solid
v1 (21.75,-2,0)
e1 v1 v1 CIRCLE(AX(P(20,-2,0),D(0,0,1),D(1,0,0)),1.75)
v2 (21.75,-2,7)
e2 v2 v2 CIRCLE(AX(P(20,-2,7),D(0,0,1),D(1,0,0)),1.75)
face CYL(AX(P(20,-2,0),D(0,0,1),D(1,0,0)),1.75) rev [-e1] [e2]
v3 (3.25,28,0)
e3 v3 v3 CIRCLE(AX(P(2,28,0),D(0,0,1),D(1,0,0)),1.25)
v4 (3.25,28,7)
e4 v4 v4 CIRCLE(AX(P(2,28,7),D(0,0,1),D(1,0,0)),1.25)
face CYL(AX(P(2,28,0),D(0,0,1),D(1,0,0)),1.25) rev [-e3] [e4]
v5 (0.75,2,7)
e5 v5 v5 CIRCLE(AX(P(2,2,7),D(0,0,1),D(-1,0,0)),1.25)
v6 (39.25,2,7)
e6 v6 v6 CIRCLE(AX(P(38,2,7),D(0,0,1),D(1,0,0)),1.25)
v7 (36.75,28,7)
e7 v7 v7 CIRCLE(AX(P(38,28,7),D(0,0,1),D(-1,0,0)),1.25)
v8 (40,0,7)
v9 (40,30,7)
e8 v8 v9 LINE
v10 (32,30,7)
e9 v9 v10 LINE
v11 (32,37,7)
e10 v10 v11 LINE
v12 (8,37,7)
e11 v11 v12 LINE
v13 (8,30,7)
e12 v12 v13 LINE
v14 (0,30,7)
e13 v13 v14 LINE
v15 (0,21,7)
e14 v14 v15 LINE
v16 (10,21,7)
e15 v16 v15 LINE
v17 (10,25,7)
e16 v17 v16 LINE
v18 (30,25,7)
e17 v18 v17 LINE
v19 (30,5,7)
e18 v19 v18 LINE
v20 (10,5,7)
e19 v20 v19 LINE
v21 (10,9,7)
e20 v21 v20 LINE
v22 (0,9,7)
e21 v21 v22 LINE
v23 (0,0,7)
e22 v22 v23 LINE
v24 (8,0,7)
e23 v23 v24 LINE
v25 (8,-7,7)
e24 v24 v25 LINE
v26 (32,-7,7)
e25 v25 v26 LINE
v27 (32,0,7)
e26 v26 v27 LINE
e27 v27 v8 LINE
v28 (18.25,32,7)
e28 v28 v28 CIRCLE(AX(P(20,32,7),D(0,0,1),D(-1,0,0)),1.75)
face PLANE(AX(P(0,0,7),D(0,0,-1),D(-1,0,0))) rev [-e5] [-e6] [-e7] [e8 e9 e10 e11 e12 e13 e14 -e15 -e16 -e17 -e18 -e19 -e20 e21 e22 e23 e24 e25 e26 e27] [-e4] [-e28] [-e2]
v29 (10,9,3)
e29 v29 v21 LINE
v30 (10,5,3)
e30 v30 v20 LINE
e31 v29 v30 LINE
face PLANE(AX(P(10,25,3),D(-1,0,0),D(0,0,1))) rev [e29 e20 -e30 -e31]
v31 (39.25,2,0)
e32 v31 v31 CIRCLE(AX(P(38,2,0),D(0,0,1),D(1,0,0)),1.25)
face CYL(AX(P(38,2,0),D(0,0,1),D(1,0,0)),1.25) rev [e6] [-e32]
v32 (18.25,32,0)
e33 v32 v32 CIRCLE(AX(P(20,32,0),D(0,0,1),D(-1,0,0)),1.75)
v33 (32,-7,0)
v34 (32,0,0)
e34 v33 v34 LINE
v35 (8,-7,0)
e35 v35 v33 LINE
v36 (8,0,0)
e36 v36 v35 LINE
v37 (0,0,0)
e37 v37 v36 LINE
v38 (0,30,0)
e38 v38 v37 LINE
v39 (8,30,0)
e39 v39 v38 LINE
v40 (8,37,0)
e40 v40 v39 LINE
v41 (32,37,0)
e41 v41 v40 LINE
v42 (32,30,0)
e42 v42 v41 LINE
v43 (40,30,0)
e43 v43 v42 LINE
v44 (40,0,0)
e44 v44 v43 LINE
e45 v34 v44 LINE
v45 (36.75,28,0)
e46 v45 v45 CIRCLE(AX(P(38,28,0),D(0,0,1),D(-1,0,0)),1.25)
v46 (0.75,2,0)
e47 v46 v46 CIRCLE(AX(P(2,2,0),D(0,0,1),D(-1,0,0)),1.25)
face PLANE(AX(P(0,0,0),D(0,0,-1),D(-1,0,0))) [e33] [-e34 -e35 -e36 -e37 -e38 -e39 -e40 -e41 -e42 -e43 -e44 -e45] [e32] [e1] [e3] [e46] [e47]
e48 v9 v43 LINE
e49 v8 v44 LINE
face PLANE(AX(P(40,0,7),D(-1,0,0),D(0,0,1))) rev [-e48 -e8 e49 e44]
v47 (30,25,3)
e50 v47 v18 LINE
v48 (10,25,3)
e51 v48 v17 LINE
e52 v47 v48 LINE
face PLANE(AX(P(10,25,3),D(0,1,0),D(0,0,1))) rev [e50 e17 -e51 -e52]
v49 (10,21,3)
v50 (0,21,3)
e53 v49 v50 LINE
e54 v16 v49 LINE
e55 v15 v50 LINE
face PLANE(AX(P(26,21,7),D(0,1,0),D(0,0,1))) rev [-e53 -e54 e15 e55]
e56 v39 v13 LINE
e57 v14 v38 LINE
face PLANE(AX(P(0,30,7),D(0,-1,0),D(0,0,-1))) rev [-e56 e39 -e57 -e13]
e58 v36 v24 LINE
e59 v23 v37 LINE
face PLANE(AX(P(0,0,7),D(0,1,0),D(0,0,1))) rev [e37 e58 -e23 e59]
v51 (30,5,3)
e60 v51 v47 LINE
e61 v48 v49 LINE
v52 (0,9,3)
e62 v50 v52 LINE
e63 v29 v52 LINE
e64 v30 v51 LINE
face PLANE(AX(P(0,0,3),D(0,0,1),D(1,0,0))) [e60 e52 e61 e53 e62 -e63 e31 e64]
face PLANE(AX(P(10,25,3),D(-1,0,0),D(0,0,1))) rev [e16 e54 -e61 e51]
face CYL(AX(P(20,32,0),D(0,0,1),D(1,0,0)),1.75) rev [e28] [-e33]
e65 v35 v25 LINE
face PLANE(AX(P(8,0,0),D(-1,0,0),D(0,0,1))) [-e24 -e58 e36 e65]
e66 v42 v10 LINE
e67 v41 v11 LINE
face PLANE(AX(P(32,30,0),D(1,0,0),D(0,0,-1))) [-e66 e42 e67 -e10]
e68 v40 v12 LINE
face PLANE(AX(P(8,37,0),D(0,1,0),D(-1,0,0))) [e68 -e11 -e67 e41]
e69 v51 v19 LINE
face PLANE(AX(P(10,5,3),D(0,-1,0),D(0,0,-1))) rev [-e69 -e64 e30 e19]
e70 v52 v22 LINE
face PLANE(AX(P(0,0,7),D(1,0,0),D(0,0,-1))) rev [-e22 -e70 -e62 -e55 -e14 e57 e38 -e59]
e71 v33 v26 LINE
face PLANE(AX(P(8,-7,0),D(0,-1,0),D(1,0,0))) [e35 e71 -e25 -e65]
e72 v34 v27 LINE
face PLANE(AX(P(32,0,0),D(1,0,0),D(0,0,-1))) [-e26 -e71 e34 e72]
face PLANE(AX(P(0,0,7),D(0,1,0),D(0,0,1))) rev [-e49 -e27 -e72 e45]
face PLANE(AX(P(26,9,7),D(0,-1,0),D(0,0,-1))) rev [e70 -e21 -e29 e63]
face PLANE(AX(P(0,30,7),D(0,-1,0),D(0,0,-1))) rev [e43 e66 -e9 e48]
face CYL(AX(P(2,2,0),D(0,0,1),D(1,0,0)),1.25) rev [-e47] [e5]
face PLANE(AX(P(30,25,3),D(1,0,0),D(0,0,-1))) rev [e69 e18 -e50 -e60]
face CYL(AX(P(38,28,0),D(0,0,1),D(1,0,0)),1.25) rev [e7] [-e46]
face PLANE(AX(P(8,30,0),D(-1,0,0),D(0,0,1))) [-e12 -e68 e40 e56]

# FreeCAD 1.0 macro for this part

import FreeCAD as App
import Part
import Sketcher


def add_polygon(sketch, points):
    """Adds a closed chain of lines whose ends are joined by coincident constraints."""
    first, n = sketch.GeometryCount, len(points)
    for a, b in zip(points, points[1:] + points[:1]):
        sketch.addGeometry(Part.LineSegment(App.Vector(*a, 0), App.Vector(*b, 0)), False)
    for i in range(n):
        sketch.addConstraint(Sketcher.Constraint("Coincident", first + i, 2, first + (i + 1) % n, 1))

doc = App.newDocument("Part")
body = doc.addObject("PartDesign::Body", "Body")

# Sketch on XY plane
sketch1 = body.newObject("Sketcher::SketchObject", "Sketch")
sketch1.AttachmentSupport = (doc.getObject("XY_Plane"), [""])
sketch1.MapMode = "FlatFace"
add_polygon(sketch1, [(0, 30), (0, 0), (40, 0), (40, 30)])  # lines 0-3
sketch1.addConstraint(Sketcher.Constraint("Vertical", 0))
sketch1.addConstraint(Sketcher.Constraint("Horizontal", 1))
sketch1.addConstraint(Sketcher.Constraint("Vertical", 2))
sketch1.addConstraint(Sketcher.Constraint("Horizontal", 3))
sketch1.addConstraint(Sketcher.Constraint("Coincident", 0, 2, -1, 1))
sketch1.addConstraint(Sketcher.Constraint("DistanceX", 1, 1, 1, 2, 40.0))
sketch1.addConstraint(Sketcher.Constraint("DistanceY", 0, 2, 0, 1, 30.0))
pad1 = body.newObject("PartDesign::Pad", "Pad")
pad1.Profile = sketch1
pad1.Length = 7

# Sketch on XY plane
sketch2 = body.newObject("Sketcher::SketchObject", "Sketch001")
sketch2.AttachmentSupport = (doc.getObject("XY_Plane"), [""])
sketch2.MapMode = "FlatFace"
sketch2.AttachmentOffset = App.Placement(App.Vector(0, 0, 7), App.Rotation())
add_polygon(sketch2, [(10, 25), (10, 5), (30, 5), (30, 25)])  # lines 0-3
sketch2.addConstraint(Sketcher.Constraint("Vertical", 0))
sketch2.addConstraint(Sketcher.Constraint("Horizontal", 1))
sketch2.addConstraint(Sketcher.Constraint("Vertical", 2))
sketch2.addConstraint(Sketcher.Constraint("Horizontal", 3))
sketch2.addConstraint(Sketcher.Constraint("Equal", 3, 0))
sketch2.addConstraint(Sketcher.Constraint("DistanceX", 1, 1, 1, 2, 20.0))
sketch2.addConstraint(Sketcher.Constraint("DistanceX", -1, 1, 0, 2, 10.0))
sketch2.addConstraint(Sketcher.Constraint("DistanceY", -1, 1, 0, 2, 5.0))
pocket1 = body.newObject("PartDesign::Pocket", "Pocket")
pocket1.Profile = sketch2
pocket1.Length = 4

# Sketch on YZ plane
sketch3 = body.newObject("Sketcher::SketchObject", "Sketch002")
sketch3.AttachmentSupport = (doc.getObject("YZ_Plane"), [""])
sketch3.MapMode = "FlatFace"
add_polygon(sketch3, [(21, 3), (9, 3), (9, 7), (21, 7)])  # lines 0-3
sketch3.addConstraint(Sketcher.Constraint("Horizontal", 0))
sketch3.addConstraint(Sketcher.Constraint("Vertical", 1))
sketch3.addConstraint(Sketcher.Constraint("Horizontal", 2))
sketch3.addConstraint(Sketcher.Constraint("Vertical", 3))
sketch3.addConstraint(Sketcher.Constraint("DistanceX", 0, 2, 0, 1, 12.0))
sketch3.addConstraint(Sketcher.Constraint("DistanceY", 1, 1, 1, 2, 4.0))
sketch3.addConstraint(Sketcher.Constraint("DistanceX", -1, 1, 0, 2, 9.0))
sketch3.addConstraint(Sketcher.Constraint("DistanceY", -1, 1, 0, 2, 3.0))
pocket2 = body.newObject("PartDesign::Pocket", "Pocket001")
pocket2.Profile = sketch3
pocket2.Length = 26
pocket2.Reversed = True

# Sketch on XY plane
sketch4 = body.newObject("Sketcher::SketchObject", "Sketch003")
sketch4.AttachmentSupport = (doc.getObject("XY_Plane"), [""])
sketch4.MapMode = "FlatFace"
sketch4.AttachmentOffset = App.Placement(App.Vector(0, 0, 7), App.Rotation())
sketch4.addGeometry(Part.Circle(App.Vector(2, 28, 0), App.Vector(0, 0, 1), 1.2), False)
sketch4.addGeometry(Part.Circle(App.Vector(38, 28, 0), App.Vector(0, 0, 1), 1.2), False)
sketch4.addGeometry(Part.Circle(App.Vector(38, 2, 0), App.Vector(0, 0, 1), 1.2), False)
sketch4.addGeometry(Part.Circle(App.Vector(2, 2, 0), App.Vector(0, 0, 1), 1.2), False)
sketch4.addConstraint(Sketcher.Constraint("Equal", 0, 1))
sketch4.addConstraint(Sketcher.Constraint("Equal", 1, 2))
sketch4.addConstraint(Sketcher.Constraint("Equal", 2, 3))
sketch4.addConstraint(Sketcher.Constraint("Horizontal", 0, 3, 1, 3))
sketch4.addConstraint(Sketcher.Constraint("Horizontal", 2, 3, 3, 3))
sketch4.addConstraint(Sketcher.Constraint("Vertical", 1, 3, 2, 3))
sketch4.addConstraint(Sketcher.Constraint("Vertical", 0, 3, 3, 3))
sketch4.addConstraint(Sketcher.Constraint("Diameter", 0, 2.5))
sketch4.addConstraint(Sketcher.Constraint("DistanceX", -1, 1, 0, 3, 2.0))
sketch4.addConstraint(Sketcher.Constraint("DistanceY", -1, 1, 0, 3, 28.0))
sketch4.addConstraint(Sketcher.Constraint("DistanceX", -1, 1, 1, 3, 38.0))
sketch4.addConstraint(Sketcher.Constraint("DistanceY", -1, 1, 2, 3, 2.0))
pocket3 = body.newObject("PartDesign::Pocket", "Pocket002")
pocket3.Profile = sketch4
pocket3.Type = "ThroughAll"

# Sketch on XY plane
sketch5 = body.newObject("Sketcher::SketchObject", "Sketch004")
sketch5.AttachmentSupport = (doc.getObject("XY_Plane"), [""])
sketch5.MapMode = "FlatFace"
sketch5.AttachmentOffset = App.Placement(App.Vector(0, 0, 7), App.Rotation())
add_polygon(sketch5, [(8, 37), (8, 30), (32, 30), (32, 37)])  # lines 0-3
add_polygon(sketch5, [(8, 0), (8, -7), (32, -7), (32, 0)])  # lines 4-7
sketch5.addConstraint(Sketcher.Constraint("Vertical", 0))
sketch5.addConstraint(Sketcher.Constraint("Horizontal", 1))
sketch5.addConstraint(Sketcher.Constraint("Vertical", 2))
sketch5.addConstraint(Sketcher.Constraint("Horizontal", 3))
sketch5.addConstraint(Sketcher.Constraint("Vertical", 4))
sketch5.addConstraint(Sketcher.Constraint("Horizontal", 5))
sketch5.addConstraint(Sketcher.Constraint("Vertical", 6))
sketch5.addConstraint(Sketcher.Constraint("Horizontal", 7))
sketch5.addConstraint(Sketcher.Constraint("PointOnObject", 6, 2, -1))
sketch5.addConstraint(Sketcher.Constraint("Vertical", 3, 2, 4, 2))
sketch5.addConstraint(Sketcher.Constraint("Vertical", 2, 2, 5, 2))
sketch5.addConstraint(Sketcher.Constraint("Equal", 2, 4))
sketch5.addConstraint(Sketcher.Constraint("DistanceX", 1, 1, 1, 2, 24.0))
sketch5.addConstraint(Sketcher.Constraint("DistanceY", 0, 2, 0, 1, 7.0))
sketch5.addConstraint(Sketcher.Constraint("DistanceX", -1, 1, 0, 2, 8.0))
sketch5.addConstraint(Sketcher.Constraint("DistanceY", -1, 1, 0, 2, 30.0))
pad2 = body.newObject("PartDesign::Pad", "Pad001")
pad2.Profile = sketch5
pad2.Length = 7
pad2.Reversed = True

# Sketch on XY plane
sketch6 = body.newObject("Sketcher::SketchObject", "Sketch005")
sketch6.AttachmentSupport = (doc.getObject("XY_Plane"), [""])
sketch6.MapMode = "FlatFace"
sketch6.AttachmentOffset = App.Placement(App.Vector(0, 0, 7), App.Rotation())
sketch6.addGeometry(Part.Circle(App.Vector(20, -2, 0), App.Vector(0, 0, 1), 1.8), False)
sketch6.addGeometry(Part.Circle(App.Vector(20, 32, 0), App.Vector(0, 0, 1), 1.8), False)
sketch6.addConstraint(Sketcher.Constraint("Equal", 0, 1))
sketch6.addConstraint(Sketcher.Constraint("Vertical", 0, 3, 1, 3))
sketch6.addConstraint(Sketcher.Constraint("Diameter", 0, 3.5))
sketch6.addConstraint(Sketcher.Constraint("DistanceX", -1, 1, 0, 3, 20.0))
sketch6.addConstraint(Sketcher.Constraint("DistanceY", 0, 3, -1, 1, 2.0))
sketch6.addConstraint(Sketcher.Constraint("DistanceY", -1, 1, 1, 3, 32.0))
pocket4 = body.newObject("PartDesign::Pocket", "Pocket003")
pocket4.Profile = sketch6
pocket4.Type = "ThroughAll"

doc.recompute()
